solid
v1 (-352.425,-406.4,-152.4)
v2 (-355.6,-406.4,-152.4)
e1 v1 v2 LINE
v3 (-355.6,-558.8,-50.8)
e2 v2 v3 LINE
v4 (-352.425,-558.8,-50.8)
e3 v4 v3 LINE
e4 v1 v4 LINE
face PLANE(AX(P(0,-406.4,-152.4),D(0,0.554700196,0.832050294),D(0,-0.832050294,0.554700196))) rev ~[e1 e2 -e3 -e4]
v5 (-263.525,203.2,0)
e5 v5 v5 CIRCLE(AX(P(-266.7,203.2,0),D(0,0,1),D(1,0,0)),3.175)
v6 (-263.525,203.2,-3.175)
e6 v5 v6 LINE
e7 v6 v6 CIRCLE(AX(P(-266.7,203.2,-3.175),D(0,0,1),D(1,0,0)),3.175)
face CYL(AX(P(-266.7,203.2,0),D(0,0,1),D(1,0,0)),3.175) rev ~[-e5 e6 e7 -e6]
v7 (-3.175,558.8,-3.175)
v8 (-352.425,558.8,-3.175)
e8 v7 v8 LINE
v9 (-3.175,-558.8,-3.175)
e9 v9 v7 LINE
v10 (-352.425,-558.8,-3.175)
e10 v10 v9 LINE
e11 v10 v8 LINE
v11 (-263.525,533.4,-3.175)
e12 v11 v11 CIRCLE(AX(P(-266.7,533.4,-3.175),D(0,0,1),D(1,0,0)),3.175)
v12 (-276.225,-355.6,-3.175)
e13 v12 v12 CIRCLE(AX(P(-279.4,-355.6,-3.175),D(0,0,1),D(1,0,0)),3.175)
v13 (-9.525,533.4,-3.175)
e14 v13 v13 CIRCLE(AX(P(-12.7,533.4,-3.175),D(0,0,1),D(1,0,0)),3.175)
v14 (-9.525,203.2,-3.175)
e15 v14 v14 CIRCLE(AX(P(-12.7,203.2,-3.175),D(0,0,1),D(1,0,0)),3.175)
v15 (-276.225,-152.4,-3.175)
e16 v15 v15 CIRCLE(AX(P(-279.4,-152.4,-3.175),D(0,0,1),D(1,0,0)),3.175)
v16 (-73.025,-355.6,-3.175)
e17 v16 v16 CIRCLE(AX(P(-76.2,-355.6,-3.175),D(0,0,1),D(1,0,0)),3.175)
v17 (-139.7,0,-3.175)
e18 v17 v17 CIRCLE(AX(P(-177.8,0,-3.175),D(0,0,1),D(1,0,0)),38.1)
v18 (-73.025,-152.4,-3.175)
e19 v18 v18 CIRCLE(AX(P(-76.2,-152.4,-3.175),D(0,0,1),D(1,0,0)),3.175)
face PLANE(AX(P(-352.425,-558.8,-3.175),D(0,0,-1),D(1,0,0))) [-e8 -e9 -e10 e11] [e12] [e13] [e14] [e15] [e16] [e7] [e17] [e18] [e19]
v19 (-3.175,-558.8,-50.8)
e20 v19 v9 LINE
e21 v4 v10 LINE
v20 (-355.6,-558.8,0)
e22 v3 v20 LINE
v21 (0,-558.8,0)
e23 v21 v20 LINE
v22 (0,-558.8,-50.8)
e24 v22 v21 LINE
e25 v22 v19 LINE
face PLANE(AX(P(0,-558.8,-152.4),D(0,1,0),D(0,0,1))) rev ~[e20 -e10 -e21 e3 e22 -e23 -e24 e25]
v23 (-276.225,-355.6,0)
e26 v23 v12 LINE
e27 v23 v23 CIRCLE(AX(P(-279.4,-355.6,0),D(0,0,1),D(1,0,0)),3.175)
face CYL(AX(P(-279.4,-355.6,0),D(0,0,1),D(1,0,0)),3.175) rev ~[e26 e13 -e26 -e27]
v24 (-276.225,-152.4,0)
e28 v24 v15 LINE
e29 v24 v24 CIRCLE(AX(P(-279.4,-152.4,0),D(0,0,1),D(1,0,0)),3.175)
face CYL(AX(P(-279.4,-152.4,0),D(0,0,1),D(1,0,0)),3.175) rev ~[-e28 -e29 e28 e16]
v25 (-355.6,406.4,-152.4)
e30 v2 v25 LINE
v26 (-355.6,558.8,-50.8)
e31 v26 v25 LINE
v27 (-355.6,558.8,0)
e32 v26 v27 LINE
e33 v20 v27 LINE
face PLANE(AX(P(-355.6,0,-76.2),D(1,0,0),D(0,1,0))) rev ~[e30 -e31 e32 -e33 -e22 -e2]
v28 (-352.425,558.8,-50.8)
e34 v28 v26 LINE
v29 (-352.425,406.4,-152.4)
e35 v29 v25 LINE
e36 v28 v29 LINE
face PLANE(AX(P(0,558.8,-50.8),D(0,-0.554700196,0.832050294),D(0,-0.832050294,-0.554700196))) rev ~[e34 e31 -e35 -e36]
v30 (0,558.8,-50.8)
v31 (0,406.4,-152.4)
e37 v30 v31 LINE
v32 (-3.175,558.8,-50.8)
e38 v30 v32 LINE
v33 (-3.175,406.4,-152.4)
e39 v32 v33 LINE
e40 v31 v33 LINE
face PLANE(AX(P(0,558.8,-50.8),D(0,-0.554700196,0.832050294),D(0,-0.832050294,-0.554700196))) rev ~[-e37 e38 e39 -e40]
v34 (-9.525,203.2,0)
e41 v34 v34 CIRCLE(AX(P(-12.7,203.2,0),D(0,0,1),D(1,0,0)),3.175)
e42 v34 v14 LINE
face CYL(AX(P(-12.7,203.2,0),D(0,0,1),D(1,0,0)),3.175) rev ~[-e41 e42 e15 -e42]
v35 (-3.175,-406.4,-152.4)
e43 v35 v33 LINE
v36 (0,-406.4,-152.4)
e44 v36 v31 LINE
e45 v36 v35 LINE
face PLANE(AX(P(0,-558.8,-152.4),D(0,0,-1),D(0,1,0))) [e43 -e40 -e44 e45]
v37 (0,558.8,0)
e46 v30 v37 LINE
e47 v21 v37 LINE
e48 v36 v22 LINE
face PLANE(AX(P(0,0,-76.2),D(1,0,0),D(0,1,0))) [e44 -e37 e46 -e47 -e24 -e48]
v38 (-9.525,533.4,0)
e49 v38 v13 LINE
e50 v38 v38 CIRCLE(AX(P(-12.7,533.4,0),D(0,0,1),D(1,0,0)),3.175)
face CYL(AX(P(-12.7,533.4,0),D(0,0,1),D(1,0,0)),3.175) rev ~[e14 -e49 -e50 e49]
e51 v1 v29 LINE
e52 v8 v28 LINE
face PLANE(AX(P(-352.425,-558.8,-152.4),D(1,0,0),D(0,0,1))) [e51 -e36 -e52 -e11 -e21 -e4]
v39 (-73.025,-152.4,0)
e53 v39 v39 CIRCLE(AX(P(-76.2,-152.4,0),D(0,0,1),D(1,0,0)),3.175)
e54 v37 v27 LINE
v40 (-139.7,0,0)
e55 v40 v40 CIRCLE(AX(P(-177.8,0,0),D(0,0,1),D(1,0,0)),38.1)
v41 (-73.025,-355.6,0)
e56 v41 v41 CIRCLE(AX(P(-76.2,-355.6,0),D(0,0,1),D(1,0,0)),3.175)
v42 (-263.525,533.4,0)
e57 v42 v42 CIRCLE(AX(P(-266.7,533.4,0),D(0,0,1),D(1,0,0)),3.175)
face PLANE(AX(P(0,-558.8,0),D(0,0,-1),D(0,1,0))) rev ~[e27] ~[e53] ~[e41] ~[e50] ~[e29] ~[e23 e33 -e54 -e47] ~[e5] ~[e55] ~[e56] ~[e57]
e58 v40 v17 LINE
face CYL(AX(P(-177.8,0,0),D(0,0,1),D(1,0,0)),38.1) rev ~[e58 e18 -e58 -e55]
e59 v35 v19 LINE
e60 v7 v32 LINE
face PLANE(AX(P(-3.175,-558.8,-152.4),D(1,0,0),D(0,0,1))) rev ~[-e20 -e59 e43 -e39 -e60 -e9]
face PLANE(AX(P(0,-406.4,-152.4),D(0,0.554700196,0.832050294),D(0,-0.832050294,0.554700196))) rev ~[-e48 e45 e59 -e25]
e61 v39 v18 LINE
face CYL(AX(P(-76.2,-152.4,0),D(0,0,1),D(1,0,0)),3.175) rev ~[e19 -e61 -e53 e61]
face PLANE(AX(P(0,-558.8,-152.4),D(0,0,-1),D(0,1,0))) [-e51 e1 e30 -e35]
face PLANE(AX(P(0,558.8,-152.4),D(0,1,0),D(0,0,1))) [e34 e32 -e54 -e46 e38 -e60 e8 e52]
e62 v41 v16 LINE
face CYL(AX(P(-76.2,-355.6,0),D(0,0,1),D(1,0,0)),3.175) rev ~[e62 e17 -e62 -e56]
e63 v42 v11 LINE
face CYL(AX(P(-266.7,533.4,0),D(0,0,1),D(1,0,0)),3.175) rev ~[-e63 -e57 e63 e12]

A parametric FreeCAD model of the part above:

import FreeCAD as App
import Part
import Sketcher
from FreeCAD import Vector
Q = App.Units.Quantity

doc = App.newDocument("Part")
body = doc.addObject("PartDesign::Body", "Body")

# Sketch on YZ plane
sketch1 = doc.addObject("Sketcher::SketchObject", "Sketch")
body.addObject(sketch1)
sketch1.AttachmentSupport = (doc.YZ_Plane, [""])
sketch1.MapMode = "FlatFace"
sketch1.addGeometry(Part.LineSegment(Vector(-559, 0, 0), Vector(-559, -152, 0)), False)
sketch1.addGeometry(Part.LineSegment(Vector(-559, -152, 0), Vector(559, -152, 0)), False)
sketch1.addGeometry(Part.LineSegment(Vector(559, -152, 0), Vector(559, 0, 0)), False)
sketch1.addGeometry(Part.LineSegment(Vector(559, 0, 0), Vector(-559, 0, 0)), False)
sketch1.addConstraint(Sketcher.Constraint("Coincident", 0, 2, 1, 1))
sketch1.addConstraint(Sketcher.Constraint("Coincident", 1, 2, 2, 1))
sketch1.addConstraint(Sketcher.Constraint("Coincident", 2, 2, 3, 1))
sketch1.addConstraint(Sketcher.Constraint("Coincident", 3, 2, 0, 1))
sketch1.addConstraint(Sketcher.Constraint("Vertical", 0))
sketch1.addConstraint(Sketcher.Constraint("Horizontal", 1))
sketch1.addConstraint(Sketcher.Constraint("Vertical", 2))
sketch1.addConstraint(Sketcher.Constraint("Horizontal", 3))
sketch1.addConstraint(Sketcher.Constraint("Symmetric", 2, 2, 3, 2, -1, 1))
sketch1.addConstraint(Sketcher.Constraint("DistanceX", 1, 1, 1, 2, Q("44 in")))
sketch1.addConstraint(Sketcher.Constraint("DistanceY", 0, 2, 0, 1, Q("6 in")))
pad1 = doc.addObject("PartDesign::Pad", "Pad")
body.addObject(pad1)
pad1.Profile = sketch1
pad1.Length = Q("14 in")
pad1.Reversed = True

# Sketch on XZ plane
sketch2 = doc.addObject("Sketcher::SketchObject", "Sketch001")
body.addObject(sketch2)
sketch2.AttachmentSupport = (doc.XZ_Plane, [""])
sketch2.MapMode = "FlatFace"
sketch2.AttachmentOffset = App.Placement(Vector(0, 0, 22 * 25.4), App.Rotation())
sketch2.addGeometry(Part.LineSegment(Vector(-352, -3, 0), Vector(-352, -152, 0)), False)
sketch2.addGeometry(Part.LineSegment(Vector(-352, -152, 0), Vector(-3, -152, 0)), False)
sketch2.addGeometry(Part.LineSegment(Vector(-3, -152, 0), Vector(-3, -3, 0)), False)
sketch2.addGeometry(Part.LineSegment(Vector(-3, -3, 0), Vector(-352, -3, 0)), False)
sketch2.addConstraint(Sketcher.Constraint("Coincident", 0, 2, 1, 1))
sketch2.addConstraint(Sketcher.Constraint("Coincident", 1, 2, 2, 1))
sketch2.addConstraint(Sketcher.Constraint("Coincident", 2, 2, 3, 1))
sketch2.addConstraint(Sketcher.Constraint("Coincident", 3, 2, 0, 1))
sketch2.addConstraint(Sketcher.Constraint("Vertical", 0))
sketch2.addConstraint(Sketcher.Constraint("Horizontal", 1))
sketch2.addConstraint(Sketcher.Constraint("Vertical", 2))
sketch2.addConstraint(Sketcher.Constraint("Horizontal", 3))
sketch2.addConstraint(Sketcher.Constraint("DistanceY", 0, 2, -1, 1, Q("6 in")))
sketch2.addConstraint(Sketcher.Constraint("DistanceX", 1, 1, 1, 2, Q("13.75 in")))
sketch2.addConstraint(Sketcher.Constraint("DistanceY", 0, 2, 0, 1, Q("5.875 in")))
sketch2.addConstraint(Sketcher.Constraint("DistanceX", 0, 2, -1, 1, Q("13.875 in")))
pocket1 = doc.addObject("PartDesign::Pocket", "Pocket")
body.addObject(pocket1)
pocket1.Profile = sketch2
pocket1.Type = "ThroughAll"

# Sketch on YZ plane
sketch3 = doc.addObject("Sketcher::SketchObject", "Sketch002")
body.addObject(sketch3)
sketch3.AttachmentSupport = (doc.YZ_Plane, [""])
sketch3.MapMode = "FlatFace"
sketch3.addGeometry(Part.LineSegment(Vector(-406, -152, 0), Vector(-559, -51, 0)), False)
sketch3.addGeometry(Part.LineSegment(Vector(-559, -51, 0), Vector(-559, -152, 0)), False)
sketch3.addGeometry(Part.LineSegment(Vector(-559, -152, 0), Vector(-406, -152, 0)), False)
sketch3.addGeometry(Part.LineSegment(Vector(559, -152, 0), Vector(559, -51, 0)), False)
sketch3.addGeometry(Part.LineSegment(Vector(559, -51, 0), Vector(406, -152, 0)), False)
sketch3.addGeometry(Part.LineSegment(Vector(406, -152, 0), Vector(559, -152, 0)), False)
sketch3.addConstraint(Sketcher.Constraint("Coincident", 0, 2, 1, 1))
sketch3.addConstraint(Sketcher.Constraint("Coincident", 1, 2, 2, 1))
sketch3.addConstraint(Sketcher.Constraint("Coincident", 2, 2, 0, 1))
sketch3.addConstraint(Sketcher.Constraint("Coincident", 3, 2, 4, 1))
sketch3.addConstraint(Sketcher.Constraint("Coincident", 4, 2, 5, 1))
sketch3.addConstraint(Sketcher.Constraint("Coincident", 5, 2, 3, 1))
sketch3.addConstraint(Sketcher.Constraint("Vertical", 1))
sketch3.addConstraint(Sketcher.Constraint("Horizontal", 2))
sketch3.addConstraint(Sketcher.Constraint("Vertical", 3))
sketch3.addConstraint(Sketcher.Constraint("Horizontal", 5))
sketch3.addConstraint(Sketcher.Constraint("Symmetric", 0, 2, 3, 2, -2))
sketch3.addConstraint(Sketcher.Constraint("Symmetric", 2, 2, 4, 2, -2))
sketch3.addConstraint(Sketcher.Constraint("DistanceX", 2, 1, 2, 2, Q("6 in")))
sketch3.addConstraint(Sketcher.Constraint("DistanceY", 1, 2, 1, 1, Q("4 in")))
sketch3.addConstraint(Sketcher.Constraint("DistanceX", 0, 2, -1, 1, Q("22 in")))
sketch3.addConstraint(Sketcher.Constraint("DistanceY", 0, 2, -1, 1, Q("2 in")))
pocket2 = doc.addObject("PartDesign::Pocket", "Pocket001")
body.addObject(pocket2)
pocket2.Profile = sketch3
pocket2.Type = "ThroughAll"

# Sketch on XY plane
sketch4 = doc.addObject("Sketcher::SketchObject", "Sketch003")
body.addObject(sketch4)
sketch4.AttachmentSupport = (doc.XY_Plane, [""])
sketch4.MapMode = "FlatFace"
sketch4.addGeometry(Part.Circle(Vector(-177.8, 0, 0), Vector(0, 0, 1), 38.1), False)
sketch4.addGeometry(Part.Circle(Vector(-12.7, 203.2, 0), Vector(0, 0, 1), 3.2), False)
sketch4.addGeometry(Part.Circle(Vector(-266.7, 203.2, 0), Vector(0, 0, 1), 3.2), False)
sketch4.addGeometry(Part.Circle(Vector(-266.7, 533.4, 0), Vector(0, 0, 1), 3.2), False)
sketch4.addGeometry(Part.Circle(Vector(-12.7, 533.4, 0), Vector(0, 0, 1), 3.2), False)
sketch4.addGeometry(Part.Circle(Vector(-76.2, -355.6, 0), Vector(0, 0, 1), 3.2), False)
sketch4.addGeometry(Part.Circle(Vector(-76.2, -152.4, 0), Vector(0, 0, 1), 3.2), False)
sketch4.addGeometry(Part.Circle(Vector(-279.4, -152.4, 0), Vector(0, 0, 1), 3.2), False)
sketch4.addGeometry(Part.Circle(Vector(-279.4, -355.6, 0), Vector(0, 0, 1), 3.2), False)
sketch4.addConstraint(Sketcher.Constraint("Equal", 1, 2))
sketch4.addConstraint(Sketcher.Constraint("Equal", 2, 3))
sketch4.addConstraint(Sketcher.Constraint("Equal", 3, 4))
sketch4.addConstraint(Sketcher.Constraint("Equal", 4, 5))
sketch4.addConstraint(Sketcher.Constraint("Equal", 5, 6))
sketch4.addConstraint(Sketcher.Constraint("Equal", 6, 7))
sketch4.addConstraint(Sketcher.Constraint("Equal", 7, 8))
sketch4.addConstraint(Sketcher.Constraint("PointOnObject", 0, 3, -1))
sketch4.addConstraint(Sketcher.Constraint("Horizontal", 1, 3, 2, 3))
sketch4.addConstraint(Sketcher.Constraint("Horizontal", 3, 3, 4, 3))
sketch4.addConstraint(Sketcher.Constraint("Horizontal", 6, 3, 7, 3))
sketch4.addConstraint(Sketcher.Constraint("Horizontal", 5, 3, 8, 3))
sketch4.addConstraint(Sketcher.Constraint("Vertical", 2, 3, 3, 3))
sketch4.addConstraint(Sketcher.Constraint("Vertical", 1, 3, 4, 3))
sketch4.addConstraint(Sketcher.Constraint("Vertical", 5, 3, 6, 3))
sketch4.addConstraint(Sketcher.Constraint("Vertical", 7, 3, 8, 3))
sketch4.addConstraint(Sketcher.Constraint("Diameter", 0, Q("3 in")))
sketch4.addConstraint(Sketcher.Constraint("Diameter", 1, Q("0.25 in")))
sketch4.addConstraint(Sketcher.Constraint("DistanceX", 0, 3, -1, 1, Q("7 in")))
sketch4.addConstraint(Sketcher.Constraint("DistanceY", -1, 1, 1, 3, Q("8 in")))
sketch4.addConstraint(Sketcher.Constraint("DistanceY", -1, 1, 3, 3, Q("21 in")))
sketch4.addConstraint(Sketcher.Constraint("DistanceX", 5, 3, -1, 1, Q("3 in")))
sketch4.addConstraint(Sketcher.Constraint("DistanceY", 5, 3, -1, 1, Q("14 in")))
sketch4.addConstraint(Sketcher.Constraint("DistanceY", 6, 3, -1, 1, Q("6 in")))
sketch4.addConstraint(Sketcher.Constraint("DistanceX", 7, 3, -1, 1, Q("11 in")))
sketch4.addConstraint(Sketcher.Constraint("DistanceX", 2, 3, 1, 3, Q("10 in")))
sketch4.addConstraint(Sketcher.Constraint("DistanceX", 1, 3, -1, 1, Q("0.5 in")))
pocket3 = doc.addObject("PartDesign::Pocket", "Pocket002")
body.addObject(pocket3)
pocket3.Profile = sketch4
pocket3.Type = "ThroughAll"

doc.recompute()
